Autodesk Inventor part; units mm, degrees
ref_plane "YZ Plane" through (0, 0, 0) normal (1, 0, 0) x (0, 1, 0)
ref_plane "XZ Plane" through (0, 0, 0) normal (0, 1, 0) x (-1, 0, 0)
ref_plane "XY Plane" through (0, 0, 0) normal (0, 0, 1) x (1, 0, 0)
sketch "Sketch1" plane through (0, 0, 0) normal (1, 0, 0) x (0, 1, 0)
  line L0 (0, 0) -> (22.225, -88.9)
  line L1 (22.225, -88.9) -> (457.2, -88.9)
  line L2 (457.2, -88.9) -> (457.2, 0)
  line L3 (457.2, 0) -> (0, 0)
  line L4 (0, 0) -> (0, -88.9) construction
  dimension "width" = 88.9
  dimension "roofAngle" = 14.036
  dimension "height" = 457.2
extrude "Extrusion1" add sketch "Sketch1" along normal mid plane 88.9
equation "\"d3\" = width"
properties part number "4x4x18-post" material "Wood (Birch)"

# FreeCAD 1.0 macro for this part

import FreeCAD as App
import Part
import Sketcher
Q = App.Units.Quantity


def add_polygon(sketch, points):
    """Adds a closed chain of lines whose ends are joined by coincident constraints."""
    first, n = sketch.GeometryCount, len(points)
    for a, b in zip(points, points[1:] + points[:1]):
        sketch.addGeometry(Part.LineSegment(App.Vector(*a, 0), App.Vector(*b, 0)), False)
    for i in range(n):
        sketch.addConstraint(Sketcher.Constraint("Coincident", first + i, 2, first + (i + 1) % n, 1))

doc = App.newDocument("Part")
body = doc.addObject("PartDesign::Body", "Body")

# Sketch on YZ plane
sketch1 = doc.addObject("Sketcher::SketchObject", "Sketch")
body.addObject(sketch1)
sketch1.AttachmentSupport = (doc.YZ_Plane, [""])
sketch1.MapMode = "FlatFace"
add_polygon(sketch1, [(457.2, 0), (0, 0), (22.225, -88.9), (457.2, -88.9)])  # lines 0-3
sketch1.addConstraint(Sketcher.Constraint("Horizontal", 0))
sketch1.addConstraint(Sketcher.Constraint("Horizontal", 2))
sketch1.addConstraint(Sketcher.Constraint("Vertical", 3))
sketch1.addConstraint(Sketcher.Constraint("Coincident", 0, 2, -1, 1))
sketch1.addConstraint(Sketcher.Constraint("DistanceX", 0, 2, 0, 1, Q("18 in")))
sketch1.addConstraint(Sketcher.Constraint("DistanceY", 3, 1, 3, 2, Q("3.5 in")))
sketch1.addConstraint(Sketcher.Constraint("DistanceX", 2, 1, 2, 2, Q("17.125 in")))
pad1 = doc.addObject("PartDesign::Pad", "Pad")
body.addObject(pad1)
pad1.Profile = sketch1
pad1.Length = Q("3.5 in")
pad1.Midplane = True

doc.recompute()
